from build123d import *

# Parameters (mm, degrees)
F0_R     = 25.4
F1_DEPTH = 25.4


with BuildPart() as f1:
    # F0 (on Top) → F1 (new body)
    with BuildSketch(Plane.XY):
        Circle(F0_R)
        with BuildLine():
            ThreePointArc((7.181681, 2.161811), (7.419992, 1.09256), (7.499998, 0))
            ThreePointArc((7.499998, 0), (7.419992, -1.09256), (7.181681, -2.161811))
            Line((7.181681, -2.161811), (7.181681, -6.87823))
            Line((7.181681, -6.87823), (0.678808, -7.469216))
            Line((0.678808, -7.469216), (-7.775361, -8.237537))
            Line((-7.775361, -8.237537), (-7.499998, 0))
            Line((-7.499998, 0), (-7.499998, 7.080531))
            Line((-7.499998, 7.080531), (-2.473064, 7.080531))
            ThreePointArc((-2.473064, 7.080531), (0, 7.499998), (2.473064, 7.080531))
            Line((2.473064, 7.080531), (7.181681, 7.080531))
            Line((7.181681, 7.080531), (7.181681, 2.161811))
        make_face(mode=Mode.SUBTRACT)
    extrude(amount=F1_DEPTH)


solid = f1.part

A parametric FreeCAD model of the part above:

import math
import FreeCAD as App
import Part
import Sketcher
Q = App.Units.Quantity

doc = App.newDocument("Part")
body = doc.addObject("PartDesign::Body", "Body")

sketch1 = body.newObject("Sketcher::SketchObject", "Sketch")
sketch1.AttachmentSupport = (doc.getObject("XY_Plane"), [""])
sketch1.MapMode = "FlatFace"
sketch1.addGeometry([
    Part.Circle(App.Vector(0, 0, 0), App.Vector(0, 0, 1), 25.4),
    Part.LineSegment(App.Vector(7.2, 7.1, 0), App.Vector(7.2, 2.2, 0)),
    Part.ArcOfCircle(Part.Circle(App.Vector(0, 0, 0), App.Vector(0, 0, 1), 7.5), math.radians(0), math.radians(16.75)),
    Part.ArcOfCircle(Part.Circle(App.Vector(0, 0, 0), App.Vector(0, 0, 1), 7.5), math.radians(-16.75), math.radians(0)),
    Part.LineSegment(App.Vector(7.2, -2.2, 0), App.Vector(7.2, -6.9, 0)),
    Part.LineSegment(App.Vector(7.2, -6.9, 0), App.Vector(0.7, -7.5, 0)),
    Part.LineSegment(App.Vector(0.7, -7.5, 0), App.Vector(-7.8, -8.2, 0)),
    Part.LineSegment(App.Vector(-7.8, -8.2, 0), App.Vector(-7.5, 0, 0)),
    Part.LineSegment(App.Vector(-7.5, 0, 0), App.Vector(-7.5, 7.1, 0)),
    Part.LineSegment(App.Vector(-7.5, 7.1, 0), App.Vector(-2.5, 7.1, 0)),
    Part.ArcOfCircle(Part.Circle(App.Vector(0, 0, 0), App.Vector(0, 0, 1), 7.5), math.radians(71), math.radians(109)),
    Part.LineSegment(App.Vector(2.5, 7.1, 0), App.Vector(7.2, 7.1, 0)),
], False)
sketch1.addConstraint([
    Sketcher.Constraint("Coincident", 1, 2, 2, 2),
    Sketcher.Constraint("Tangent", 2, 1, 3, 2),
    Sketcher.Constraint("Coincident", 3, 1, 4, 1),
    Sketcher.Constraint("Coincident", 4, 2, 5, 1),
    Sketcher.Constraint("Coincident", 5, 2, 6, 1),
    Sketcher.Constraint("Coincident", 6, 2, 7, 1),
    Sketcher.Constraint("Coincident", 7, 2, 8, 1),
    Sketcher.Constraint("Coincident", 8, 2, 9, 1),
    Sketcher.Constraint("Coincident", 9, 2, 10, 2),
    Sketcher.Constraint("Coincident", 10, 1, 11, 1),
    Sketcher.Constraint("Coincident", 11, 2, 1, 1),
    Sketcher.Constraint("Vertical", 1),
    Sketcher.Constraint("Vertical", 4),
    Sketcher.Constraint("Vertical", 8),
    Sketcher.Constraint("Horizontal", 9),
    Sketcher.Constraint("Horizontal", 11),
    Sketcher.Constraint("Coincident", 0, 3, -1, 1),
    Sketcher.Constraint("Coincident", 2, 3, -1, 1),
    Sketcher.Constraint("Coincident", 10, 3, -1, 1),
    Sketcher.Constraint("Equal", 2, 3),
    Sketcher.Constraint("Symmetric", 2, 1, 7, 2, -1, 1),
    Sketcher.Constraint("PointOnObject", 2, 1, -1),
    Sketcher.Constraint("Parallel", 5, 6),
    Sketcher.Constraint("Horizontal", 9, 2, 10, 1),
    Sketcher.Constraint("Vertical", 1, 2, 3, 1),
    Sketcher.Constraint("Diameter", 0, Q("2 in")),
    Sketcher.Constraint("Radius", 10, Q("7.499992 mm")),
    Sketcher.Constraint("Radius", 2, Q("7.500003 mm")),
    Sketcher.Constraint("DistanceY", 1, 2, 1, 1, Q("4.91872 mm")),
    Sketcher.Constraint("DistanceY", 4, 2, 4, 1, Q("4.716419 mm")),
    Sketcher.Constraint("DistanceY", 8, 1, 8, 2, Q("7.080531 mm")),
    Sketcher.Constraint("Distance", 6, Q("8.48901 mm")),
    Sketcher.Constraint("Distance", 7, Q("8.242138 mm")),
    Sketcher.Constraint("DistanceX", 6, 2, -1, 1, Q("7.775361 mm")),
])
pad1 = body.newObject("PartDesign::Pad", "Pad")
pad1.Profile = sketch1
pad1.Length = Q("1 in")

doc.recompute()
